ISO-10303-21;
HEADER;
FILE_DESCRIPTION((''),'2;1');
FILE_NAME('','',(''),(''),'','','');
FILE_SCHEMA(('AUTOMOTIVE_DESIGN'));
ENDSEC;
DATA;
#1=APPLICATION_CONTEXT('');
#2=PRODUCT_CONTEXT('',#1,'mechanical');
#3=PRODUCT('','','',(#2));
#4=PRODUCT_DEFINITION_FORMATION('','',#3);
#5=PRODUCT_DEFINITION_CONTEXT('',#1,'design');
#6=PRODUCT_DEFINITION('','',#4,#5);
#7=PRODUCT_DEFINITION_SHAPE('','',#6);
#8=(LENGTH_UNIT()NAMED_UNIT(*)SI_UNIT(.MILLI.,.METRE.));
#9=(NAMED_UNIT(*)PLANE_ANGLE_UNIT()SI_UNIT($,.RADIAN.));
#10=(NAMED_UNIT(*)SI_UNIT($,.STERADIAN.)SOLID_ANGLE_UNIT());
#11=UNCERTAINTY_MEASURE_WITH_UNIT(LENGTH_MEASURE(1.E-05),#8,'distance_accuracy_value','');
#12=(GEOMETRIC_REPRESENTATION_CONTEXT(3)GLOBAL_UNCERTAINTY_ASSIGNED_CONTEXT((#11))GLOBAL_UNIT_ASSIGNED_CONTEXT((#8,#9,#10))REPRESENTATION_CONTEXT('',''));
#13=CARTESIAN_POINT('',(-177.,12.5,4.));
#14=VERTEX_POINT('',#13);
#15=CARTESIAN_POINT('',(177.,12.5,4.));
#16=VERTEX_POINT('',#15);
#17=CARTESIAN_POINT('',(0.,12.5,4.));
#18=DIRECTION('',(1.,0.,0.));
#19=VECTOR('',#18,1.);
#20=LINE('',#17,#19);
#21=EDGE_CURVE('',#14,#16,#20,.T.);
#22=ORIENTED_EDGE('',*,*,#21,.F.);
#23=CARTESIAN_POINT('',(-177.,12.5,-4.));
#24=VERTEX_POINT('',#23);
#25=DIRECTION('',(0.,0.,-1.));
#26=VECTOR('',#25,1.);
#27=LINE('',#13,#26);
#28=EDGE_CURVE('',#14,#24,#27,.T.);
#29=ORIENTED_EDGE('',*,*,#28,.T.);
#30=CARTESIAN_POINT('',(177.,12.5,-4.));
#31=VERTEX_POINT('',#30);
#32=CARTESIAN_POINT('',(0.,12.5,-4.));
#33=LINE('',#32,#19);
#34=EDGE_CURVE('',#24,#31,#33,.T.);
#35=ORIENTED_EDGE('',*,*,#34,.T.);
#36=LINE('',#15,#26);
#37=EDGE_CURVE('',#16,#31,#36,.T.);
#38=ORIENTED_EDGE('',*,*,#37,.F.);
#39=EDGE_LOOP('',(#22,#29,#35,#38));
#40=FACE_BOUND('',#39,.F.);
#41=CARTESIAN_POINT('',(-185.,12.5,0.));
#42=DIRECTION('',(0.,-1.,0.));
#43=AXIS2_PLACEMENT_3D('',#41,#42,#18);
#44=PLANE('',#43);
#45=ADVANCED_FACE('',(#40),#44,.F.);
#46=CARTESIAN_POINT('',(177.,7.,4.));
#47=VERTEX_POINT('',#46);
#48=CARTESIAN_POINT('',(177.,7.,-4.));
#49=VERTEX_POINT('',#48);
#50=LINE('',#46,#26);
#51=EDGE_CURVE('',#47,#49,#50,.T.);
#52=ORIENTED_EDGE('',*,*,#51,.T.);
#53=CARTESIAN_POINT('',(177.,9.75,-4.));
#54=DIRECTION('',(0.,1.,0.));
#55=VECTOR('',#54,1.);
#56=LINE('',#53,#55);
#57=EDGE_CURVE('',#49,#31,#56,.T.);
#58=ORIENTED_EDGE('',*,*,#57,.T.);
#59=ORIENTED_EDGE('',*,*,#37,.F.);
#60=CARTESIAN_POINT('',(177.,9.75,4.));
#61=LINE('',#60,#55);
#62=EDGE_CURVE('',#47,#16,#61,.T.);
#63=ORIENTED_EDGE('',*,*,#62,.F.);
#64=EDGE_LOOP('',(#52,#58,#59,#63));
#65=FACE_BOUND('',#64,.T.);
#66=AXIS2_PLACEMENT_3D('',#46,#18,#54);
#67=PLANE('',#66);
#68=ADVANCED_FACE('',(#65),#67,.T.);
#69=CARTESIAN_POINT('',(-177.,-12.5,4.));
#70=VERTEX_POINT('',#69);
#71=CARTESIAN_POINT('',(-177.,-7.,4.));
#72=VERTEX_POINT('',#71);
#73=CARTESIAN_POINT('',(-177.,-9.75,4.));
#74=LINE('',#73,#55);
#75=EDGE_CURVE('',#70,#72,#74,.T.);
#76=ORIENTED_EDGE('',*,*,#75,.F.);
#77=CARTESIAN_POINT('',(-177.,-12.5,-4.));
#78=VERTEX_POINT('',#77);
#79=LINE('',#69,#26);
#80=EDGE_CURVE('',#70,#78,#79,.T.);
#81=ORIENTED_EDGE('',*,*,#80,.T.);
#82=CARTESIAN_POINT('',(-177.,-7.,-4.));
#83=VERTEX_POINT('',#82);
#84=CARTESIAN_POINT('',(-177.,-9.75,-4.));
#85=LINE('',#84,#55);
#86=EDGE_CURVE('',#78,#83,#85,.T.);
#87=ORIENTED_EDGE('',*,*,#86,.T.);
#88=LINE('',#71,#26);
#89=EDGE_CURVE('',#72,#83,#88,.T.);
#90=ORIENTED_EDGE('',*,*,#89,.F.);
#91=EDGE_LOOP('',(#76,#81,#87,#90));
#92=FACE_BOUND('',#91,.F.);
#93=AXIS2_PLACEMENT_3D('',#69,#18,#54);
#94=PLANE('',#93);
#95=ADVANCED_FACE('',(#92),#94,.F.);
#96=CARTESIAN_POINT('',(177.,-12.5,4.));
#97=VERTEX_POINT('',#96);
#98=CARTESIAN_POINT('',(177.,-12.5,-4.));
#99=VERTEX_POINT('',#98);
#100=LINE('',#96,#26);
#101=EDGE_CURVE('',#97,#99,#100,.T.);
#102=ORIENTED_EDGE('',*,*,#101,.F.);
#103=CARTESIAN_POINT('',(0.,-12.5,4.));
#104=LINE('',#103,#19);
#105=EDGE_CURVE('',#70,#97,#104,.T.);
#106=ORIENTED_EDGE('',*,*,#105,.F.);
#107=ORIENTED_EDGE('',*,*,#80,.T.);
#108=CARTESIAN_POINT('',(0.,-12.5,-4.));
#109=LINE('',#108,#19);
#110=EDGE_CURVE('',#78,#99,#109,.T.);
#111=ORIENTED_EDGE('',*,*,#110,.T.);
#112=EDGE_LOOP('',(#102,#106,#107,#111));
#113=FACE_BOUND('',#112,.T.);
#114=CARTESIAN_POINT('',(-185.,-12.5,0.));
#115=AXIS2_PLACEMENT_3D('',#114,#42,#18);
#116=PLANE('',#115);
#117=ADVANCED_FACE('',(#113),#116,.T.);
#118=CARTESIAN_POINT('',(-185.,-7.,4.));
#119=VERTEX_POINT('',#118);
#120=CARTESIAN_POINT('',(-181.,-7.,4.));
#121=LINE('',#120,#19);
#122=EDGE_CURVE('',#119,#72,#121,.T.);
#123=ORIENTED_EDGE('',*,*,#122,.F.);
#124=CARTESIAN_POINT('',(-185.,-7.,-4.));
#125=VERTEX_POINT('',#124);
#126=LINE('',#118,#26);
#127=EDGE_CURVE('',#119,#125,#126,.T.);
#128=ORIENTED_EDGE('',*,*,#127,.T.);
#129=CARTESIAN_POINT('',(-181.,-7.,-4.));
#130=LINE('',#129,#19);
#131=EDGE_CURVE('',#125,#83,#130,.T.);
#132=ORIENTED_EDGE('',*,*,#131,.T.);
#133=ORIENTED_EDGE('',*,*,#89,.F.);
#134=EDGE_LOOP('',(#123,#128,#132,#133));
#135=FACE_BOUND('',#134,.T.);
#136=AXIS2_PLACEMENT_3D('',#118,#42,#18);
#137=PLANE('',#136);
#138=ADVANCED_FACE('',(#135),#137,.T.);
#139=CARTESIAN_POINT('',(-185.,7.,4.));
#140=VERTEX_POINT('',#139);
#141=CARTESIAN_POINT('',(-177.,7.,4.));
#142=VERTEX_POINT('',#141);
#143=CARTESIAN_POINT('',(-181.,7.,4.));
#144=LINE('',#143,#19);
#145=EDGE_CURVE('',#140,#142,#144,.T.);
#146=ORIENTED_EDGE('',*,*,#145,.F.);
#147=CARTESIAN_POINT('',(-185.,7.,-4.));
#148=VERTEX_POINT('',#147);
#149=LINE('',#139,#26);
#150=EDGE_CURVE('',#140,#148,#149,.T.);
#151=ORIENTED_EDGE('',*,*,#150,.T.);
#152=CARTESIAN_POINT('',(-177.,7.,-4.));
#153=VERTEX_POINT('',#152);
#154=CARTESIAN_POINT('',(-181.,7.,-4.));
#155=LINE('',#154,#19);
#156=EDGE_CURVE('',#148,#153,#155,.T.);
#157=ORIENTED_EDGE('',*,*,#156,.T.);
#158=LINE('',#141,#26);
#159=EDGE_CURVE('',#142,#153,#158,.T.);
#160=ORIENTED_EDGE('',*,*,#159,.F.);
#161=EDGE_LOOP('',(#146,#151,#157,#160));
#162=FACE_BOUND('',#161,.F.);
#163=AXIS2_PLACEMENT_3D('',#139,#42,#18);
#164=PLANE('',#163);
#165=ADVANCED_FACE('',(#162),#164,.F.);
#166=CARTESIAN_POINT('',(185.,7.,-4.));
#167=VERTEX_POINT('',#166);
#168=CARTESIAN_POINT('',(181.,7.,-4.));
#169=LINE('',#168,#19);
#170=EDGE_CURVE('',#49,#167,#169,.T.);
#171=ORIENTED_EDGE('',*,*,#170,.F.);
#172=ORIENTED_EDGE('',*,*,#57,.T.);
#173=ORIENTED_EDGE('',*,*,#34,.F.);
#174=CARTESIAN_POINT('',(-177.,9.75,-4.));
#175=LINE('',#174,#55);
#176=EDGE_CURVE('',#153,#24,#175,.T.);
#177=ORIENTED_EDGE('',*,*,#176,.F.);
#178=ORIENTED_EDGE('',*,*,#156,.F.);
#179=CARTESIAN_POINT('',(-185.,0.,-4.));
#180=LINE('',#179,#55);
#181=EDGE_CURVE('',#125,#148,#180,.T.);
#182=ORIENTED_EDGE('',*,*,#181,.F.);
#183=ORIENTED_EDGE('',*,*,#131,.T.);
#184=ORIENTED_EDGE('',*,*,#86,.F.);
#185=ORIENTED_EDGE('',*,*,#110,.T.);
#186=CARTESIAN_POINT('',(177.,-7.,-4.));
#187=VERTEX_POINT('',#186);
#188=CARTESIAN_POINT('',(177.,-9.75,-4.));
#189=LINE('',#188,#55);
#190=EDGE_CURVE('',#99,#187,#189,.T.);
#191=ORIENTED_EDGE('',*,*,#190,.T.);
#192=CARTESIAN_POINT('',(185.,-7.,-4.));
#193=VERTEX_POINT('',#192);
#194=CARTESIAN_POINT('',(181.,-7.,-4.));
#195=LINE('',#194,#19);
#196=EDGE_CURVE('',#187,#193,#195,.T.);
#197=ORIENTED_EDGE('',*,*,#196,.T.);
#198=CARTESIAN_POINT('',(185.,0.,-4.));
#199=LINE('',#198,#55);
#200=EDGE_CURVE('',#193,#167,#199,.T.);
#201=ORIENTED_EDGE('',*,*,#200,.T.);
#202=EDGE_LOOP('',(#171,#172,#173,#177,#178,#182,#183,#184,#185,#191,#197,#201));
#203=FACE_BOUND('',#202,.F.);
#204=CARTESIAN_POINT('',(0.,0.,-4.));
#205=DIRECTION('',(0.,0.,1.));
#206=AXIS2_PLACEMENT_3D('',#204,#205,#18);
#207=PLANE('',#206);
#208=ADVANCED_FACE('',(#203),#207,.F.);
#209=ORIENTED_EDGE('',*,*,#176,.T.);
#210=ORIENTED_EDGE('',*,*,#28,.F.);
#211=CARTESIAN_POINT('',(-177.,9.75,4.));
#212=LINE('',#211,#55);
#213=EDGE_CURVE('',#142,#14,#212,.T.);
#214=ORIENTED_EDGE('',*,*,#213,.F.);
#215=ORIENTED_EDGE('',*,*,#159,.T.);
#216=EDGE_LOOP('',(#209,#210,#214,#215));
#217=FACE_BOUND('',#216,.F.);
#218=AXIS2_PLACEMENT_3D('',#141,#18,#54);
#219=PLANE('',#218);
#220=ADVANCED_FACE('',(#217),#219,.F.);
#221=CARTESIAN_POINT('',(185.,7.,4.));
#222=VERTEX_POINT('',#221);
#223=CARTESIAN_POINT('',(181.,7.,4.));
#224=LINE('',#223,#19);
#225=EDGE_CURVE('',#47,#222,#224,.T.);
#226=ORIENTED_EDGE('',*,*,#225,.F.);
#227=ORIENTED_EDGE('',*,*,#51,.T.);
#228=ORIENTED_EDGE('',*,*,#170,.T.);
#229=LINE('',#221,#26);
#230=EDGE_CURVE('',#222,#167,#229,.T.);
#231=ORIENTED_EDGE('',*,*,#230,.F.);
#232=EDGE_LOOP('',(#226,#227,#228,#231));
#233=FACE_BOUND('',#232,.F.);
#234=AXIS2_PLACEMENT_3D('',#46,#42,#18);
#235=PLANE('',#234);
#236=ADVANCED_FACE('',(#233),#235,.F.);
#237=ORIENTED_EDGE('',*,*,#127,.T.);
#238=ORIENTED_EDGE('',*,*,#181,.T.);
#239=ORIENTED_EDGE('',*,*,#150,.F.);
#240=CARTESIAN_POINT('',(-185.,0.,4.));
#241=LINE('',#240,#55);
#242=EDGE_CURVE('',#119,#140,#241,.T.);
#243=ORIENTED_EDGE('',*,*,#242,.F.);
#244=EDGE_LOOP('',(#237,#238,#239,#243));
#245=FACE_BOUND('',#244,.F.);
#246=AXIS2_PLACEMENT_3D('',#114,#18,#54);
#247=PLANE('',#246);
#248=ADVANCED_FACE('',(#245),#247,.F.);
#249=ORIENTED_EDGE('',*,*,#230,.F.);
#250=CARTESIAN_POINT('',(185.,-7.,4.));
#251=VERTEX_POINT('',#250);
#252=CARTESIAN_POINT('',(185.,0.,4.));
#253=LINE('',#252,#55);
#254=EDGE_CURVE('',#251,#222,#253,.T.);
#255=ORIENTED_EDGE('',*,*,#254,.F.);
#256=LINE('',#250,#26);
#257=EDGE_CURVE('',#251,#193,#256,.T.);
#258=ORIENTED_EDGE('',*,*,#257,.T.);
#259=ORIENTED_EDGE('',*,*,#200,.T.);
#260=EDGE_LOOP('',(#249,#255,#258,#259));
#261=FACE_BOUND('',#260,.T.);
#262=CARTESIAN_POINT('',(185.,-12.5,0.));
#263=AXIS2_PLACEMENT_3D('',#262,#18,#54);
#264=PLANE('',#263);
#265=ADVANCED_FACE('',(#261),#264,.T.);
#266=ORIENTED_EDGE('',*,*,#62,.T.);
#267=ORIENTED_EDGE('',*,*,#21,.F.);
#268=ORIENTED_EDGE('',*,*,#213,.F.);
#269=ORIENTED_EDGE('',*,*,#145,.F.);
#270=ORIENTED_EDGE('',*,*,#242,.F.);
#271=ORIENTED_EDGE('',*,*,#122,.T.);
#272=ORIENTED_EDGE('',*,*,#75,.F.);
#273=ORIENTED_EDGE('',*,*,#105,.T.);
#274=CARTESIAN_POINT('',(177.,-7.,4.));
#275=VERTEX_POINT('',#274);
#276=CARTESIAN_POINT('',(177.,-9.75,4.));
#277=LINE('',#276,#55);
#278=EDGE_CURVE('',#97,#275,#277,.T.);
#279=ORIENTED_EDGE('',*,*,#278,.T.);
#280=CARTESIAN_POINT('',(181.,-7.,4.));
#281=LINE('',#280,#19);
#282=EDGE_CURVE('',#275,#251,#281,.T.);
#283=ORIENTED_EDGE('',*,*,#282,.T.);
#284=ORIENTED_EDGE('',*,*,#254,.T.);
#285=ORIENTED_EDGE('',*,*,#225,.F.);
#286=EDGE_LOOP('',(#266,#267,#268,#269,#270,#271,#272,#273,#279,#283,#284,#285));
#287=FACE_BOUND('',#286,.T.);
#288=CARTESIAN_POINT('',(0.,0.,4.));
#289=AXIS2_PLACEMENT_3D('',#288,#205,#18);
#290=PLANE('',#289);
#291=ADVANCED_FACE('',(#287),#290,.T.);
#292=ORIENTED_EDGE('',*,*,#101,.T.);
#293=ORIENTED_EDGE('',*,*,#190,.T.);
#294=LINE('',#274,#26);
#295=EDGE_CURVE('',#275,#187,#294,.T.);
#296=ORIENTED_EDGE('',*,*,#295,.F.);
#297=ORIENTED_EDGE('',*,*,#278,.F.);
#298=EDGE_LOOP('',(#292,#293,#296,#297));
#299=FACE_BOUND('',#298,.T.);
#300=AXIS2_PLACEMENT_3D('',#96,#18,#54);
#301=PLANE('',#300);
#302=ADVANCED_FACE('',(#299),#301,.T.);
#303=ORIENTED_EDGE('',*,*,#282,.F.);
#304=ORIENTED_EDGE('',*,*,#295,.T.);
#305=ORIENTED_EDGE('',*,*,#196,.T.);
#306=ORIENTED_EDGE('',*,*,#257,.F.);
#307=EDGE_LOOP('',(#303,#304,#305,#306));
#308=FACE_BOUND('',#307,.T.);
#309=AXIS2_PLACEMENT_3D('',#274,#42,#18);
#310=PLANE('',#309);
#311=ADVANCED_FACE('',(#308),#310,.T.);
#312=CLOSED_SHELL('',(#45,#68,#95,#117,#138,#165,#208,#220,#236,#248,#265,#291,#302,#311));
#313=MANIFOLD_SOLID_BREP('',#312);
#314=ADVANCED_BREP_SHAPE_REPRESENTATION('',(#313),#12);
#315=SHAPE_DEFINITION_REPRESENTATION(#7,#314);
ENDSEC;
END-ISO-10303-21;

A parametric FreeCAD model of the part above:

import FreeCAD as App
import Part
import Sketcher

doc = App.newDocument("Part")
body = doc.addObject("PartDesign::Body", "Body")

# Sketch on XY plane
sketch1 = body.newObject("Sketcher::SketchObject", "Sketch")
sketch1.AttachmentSupport = (doc.getObject("XY_Plane"), [""])
sketch1.MapMode = "FlatFace"
sketch1.addGeometry(Part.LineSegment(App.Vector(-185, 12.5, 0), App.Vector(-185, -12.5, 0)), False)
sketch1.addGeometry(Part.LineSegment(App.Vector(-185, -12.5, 0), App.Vector(185, -12.5, 0)), False)
sketch1.addGeometry(Part.LineSegment(App.Vector(185, -12.5, 0), App.Vector(185, 12.5, 0)), False)
sketch1.addGeometry(Part.LineSegment(App.Vector(185, 12.5, 0), App.Vector(-185, 12.5, 0)), False)
sketch1.addConstraint(Sketcher.Constraint("Coincident", 0, 2, 1, 1))
sketch1.addConstraint(Sketcher.Constraint("Coincident", 1, 2, 2, 1))
sketch1.addConstraint(Sketcher.Constraint("Coincident", 2, 2, 3, 1))
sketch1.addConstraint(Sketcher.Constraint("Coincident", 3, 2, 0, 1))
sketch1.addConstraint(Sketcher.Constraint("Vertical", 0))
sketch1.addConstraint(Sketcher.Constraint("Horizontal", 1))
sketch1.addConstraint(Sketcher.Constraint("Vertical", 2))
sketch1.addConstraint(Sketcher.Constraint("Horizontal", 3))
sketch1.addConstraint(Sketcher.Constraint("Symmetric", 0, 2, 2, 2, -1, 1))
sketch1.addConstraint(Sketcher.Constraint("DistanceX", 1, 1, 1, 2, 370.0))
sketch1.addConstraint(Sketcher.Constraint("DistanceY", 0, 2, 0, 1, 25.0))
pad1 = body.newObject("PartDesign::Pad", "Pad")
pad1.Profile = sketch1
pad1.Length = 8
pad1.Midplane = True

# Sketch on XY plane
sketch2 = body.newObject("Sketcher::SketchObject", "Sketch001")
sketch2.AttachmentSupport = (doc.getObject("XY_Plane"), [""])
sketch2.MapMode = "FlatFace"
sketch2.AttachmentOffset = App.Placement(App.Vector(0, 0, 4), App.Rotation())
sketch2.addGeometry(Part.LineSegment(App.Vector(-185, 12.5, 0), App.Vector(-185, 7, 0)), False)
sketch2.addGeometry(Part.LineSegment(App.Vector(-185, 7, 0), App.Vector(-177, 7, 0)), False)
sketch2.addGeometry(Part.LineSegment(App.Vector(-177, 7, 0), App.Vector(-177, 12.5, 0)), False)
sketch2.addGeometry(Part.LineSegment(App.Vector(-177, 12.5, 0), App.Vector(-185, 12.5, 0)), False)
sketch2.addGeometry(Part.LineSegment(App.Vector(-185, -7, 0), App.Vector(-185, -12.5, 0)), False)
sketch2.addGeometry(Part.LineSegment(App.Vector(-185, -12.5, 0), App.Vector(-177, -12.5, 0)), False)
sketch2.addGeometry(Part.LineSegment(App.Vector(-177, -12.5, 0), App.Vector(-177, -7, 0)), False)
sketch2.addGeometry(Part.LineSegment(App.Vector(-177, -7, 0), App.Vector(-185, -7, 0)), False)
sketch2.addGeometry(Part.LineSegment(App.Vector(177, 12.5, 0), App.Vector(177, 7, 0)), False)
sketch2.addGeometry(Part.LineSegment(App.Vector(177, 7, 0), App.Vector(185, 7, 0)), False)
sketch2.addGeometry(Part.LineSegment(App.Vector(185, 7, 0), App.Vector(185, 12.5, 0)), False)
sketch2.addGeometry(Part.LineSegment(App.Vector(185, 12.5, 0), App.Vector(177, 12.5, 0)), False)
sketch2.addGeometry(Part.LineSegment(App.Vector(177, -7, 0), App.Vector(177, -12.5, 0)), False)
sketch2.addGeometry(Part.LineSegment(App.Vector(177, -12.5, 0), App.Vector(185, -12.5, 0)), False)
sketch2.addGeometry(Part.LineSegment(App.Vector(185, -12.5, 0), App.Vector(185, -7, 0)), False)
sketch2.addGeometry(Part.LineSegment(App.Vector(185, -7, 0), App.Vector(177, -7, 0)), False)
sketch2.addConstraint(Sketcher.Constraint("Coincident", 0, 2, 1, 1))
sketch2.addConstraint(Sketcher.Constraint("Coincident", 1, 2, 2, 1))
sketch2.addConstraint(Sketcher.Constraint("Coincident", 2, 2, 3, 1))
sketch2.addConstraint(Sketcher.Constraint("Coincident", 3, 2, 0, 1))
sketch2.addConstraint(Sketcher.Constraint("Coincident", 4, 2, 5, 1))
sketch2.addConstraint(Sketcher.Constraint("Coincident", 5, 2, 6, 1))
sketch2.addConstraint(Sketcher.Constraint("Coincident", 6, 2, 7, 1))
sketch2.addConstraint(Sketcher.Constraint("Coincident", 7, 2, 4, 1))
sketch2.addConstraint(Sketcher.Constraint("Coincident", 8, 2, 9, 1))
sketch2.addConstraint(Sketcher.Constraint("Coincident", 9, 2, 10, 1))
sketch2.addConstraint(Sketcher.Constraint("Coincident", 10, 2, 11, 1))
sketch2.addConstraint(Sketcher.Constraint("Coincident", 11, 2, 8, 1))
sketch2.addConstraint(Sketcher.Constraint("Coincident", 12, 2, 13, 1))
sketch2.addConstraint(Sketcher.Constraint("Coincident", 13, 2, 14, 1))
sketch2.addConstraint(Sketcher.Constraint("Coincident", 14, 2, 15, 1))
sketch2.addConstraint(Sketcher.Constraint("Coincident", 15, 2, 12, 1))
sketch2.addConstraint(Sketcher.Constraint("Vertical", 0))
sketch2.addConstraint(Sketcher.Constraint("Horizontal", 1))
sketch2.addConstraint(Sketcher.Constraint("Vertical", 2))
sketch2.addConstraint(Sketcher.Constraint("Horizontal", 3))
sketch2.addConstraint(Sketcher.Constraint("Vertical", 4))
sketch2.addConstraint(Sketcher.Constraint("Horizontal", 5))
sketch2.addConstraint(Sketcher.Constraint("Vertical", 6))
sketch2.addConstraint(Sketcher.Constraint("Horizontal", 7))
sketch2.addConstraint(Sketcher.Constraint("Vertical", 8))
sketch2.addConstraint(Sketcher.Constraint("Horizontal", 9))
sketch2.addConstraint(Sketcher.Constraint("Vertical", 10))
sketch2.addConstraint(Sketcher.Constraint("Horizontal", 11))
sketch2.addConstraint(Sketcher.Constraint("Vertical", 12))
sketch2.addConstraint(Sketcher.Constraint("Horizontal", 13))
sketch2.addConstraint(Sketcher.Constraint("Vertical", 14))
sketch2.addConstraint(Sketcher.Constraint("Horizontal", 15))
sketch2.addConstraint(Sketcher.Constraint("Symmetric", 6, 2, 8, 2, -1, 1))
sketch2.addConstraint(Sketcher.Constraint("Symmetric", 4, 2, 10, 2, -1, 1))
sketch2.addConstraint(Sketcher.Constraint("Symmetric", 2, 2, 12, 2, -1, 1))
sketch2.addConstraint(Sketcher.Constraint("Symmetric", 0, 2, 14, 2, -1, 1))
sketch2.addConstraint(Sketcher.Constraint("Symmetric", 1, 2, 8, 2, -2))
sketch2.addConstraint(Sketcher.Constraint("Symmetric", 3, 2, 10, 2, -2))
sketch2.addConstraint(Sketcher.Constraint("DistanceX", 1, 1, 1, 2, 8.0))
sketch2.addConstraint(Sketcher.Constraint("DistanceY", 0, 2, 0, 1, 5.5))
sketch2.addConstraint(Sketcher.Constraint("DistanceX", 0, 2, -1, 1, 185.0))
sketch2.addConstraint(Sketcher.Constraint("DistanceY", -1, 1, 0, 2, 7.0))
pocket1 = body.newObject("PartDesign::Pocket", "Pocket")
pocket1.Profile = sketch2
pocket1.Length = 8

doc.recompute()
